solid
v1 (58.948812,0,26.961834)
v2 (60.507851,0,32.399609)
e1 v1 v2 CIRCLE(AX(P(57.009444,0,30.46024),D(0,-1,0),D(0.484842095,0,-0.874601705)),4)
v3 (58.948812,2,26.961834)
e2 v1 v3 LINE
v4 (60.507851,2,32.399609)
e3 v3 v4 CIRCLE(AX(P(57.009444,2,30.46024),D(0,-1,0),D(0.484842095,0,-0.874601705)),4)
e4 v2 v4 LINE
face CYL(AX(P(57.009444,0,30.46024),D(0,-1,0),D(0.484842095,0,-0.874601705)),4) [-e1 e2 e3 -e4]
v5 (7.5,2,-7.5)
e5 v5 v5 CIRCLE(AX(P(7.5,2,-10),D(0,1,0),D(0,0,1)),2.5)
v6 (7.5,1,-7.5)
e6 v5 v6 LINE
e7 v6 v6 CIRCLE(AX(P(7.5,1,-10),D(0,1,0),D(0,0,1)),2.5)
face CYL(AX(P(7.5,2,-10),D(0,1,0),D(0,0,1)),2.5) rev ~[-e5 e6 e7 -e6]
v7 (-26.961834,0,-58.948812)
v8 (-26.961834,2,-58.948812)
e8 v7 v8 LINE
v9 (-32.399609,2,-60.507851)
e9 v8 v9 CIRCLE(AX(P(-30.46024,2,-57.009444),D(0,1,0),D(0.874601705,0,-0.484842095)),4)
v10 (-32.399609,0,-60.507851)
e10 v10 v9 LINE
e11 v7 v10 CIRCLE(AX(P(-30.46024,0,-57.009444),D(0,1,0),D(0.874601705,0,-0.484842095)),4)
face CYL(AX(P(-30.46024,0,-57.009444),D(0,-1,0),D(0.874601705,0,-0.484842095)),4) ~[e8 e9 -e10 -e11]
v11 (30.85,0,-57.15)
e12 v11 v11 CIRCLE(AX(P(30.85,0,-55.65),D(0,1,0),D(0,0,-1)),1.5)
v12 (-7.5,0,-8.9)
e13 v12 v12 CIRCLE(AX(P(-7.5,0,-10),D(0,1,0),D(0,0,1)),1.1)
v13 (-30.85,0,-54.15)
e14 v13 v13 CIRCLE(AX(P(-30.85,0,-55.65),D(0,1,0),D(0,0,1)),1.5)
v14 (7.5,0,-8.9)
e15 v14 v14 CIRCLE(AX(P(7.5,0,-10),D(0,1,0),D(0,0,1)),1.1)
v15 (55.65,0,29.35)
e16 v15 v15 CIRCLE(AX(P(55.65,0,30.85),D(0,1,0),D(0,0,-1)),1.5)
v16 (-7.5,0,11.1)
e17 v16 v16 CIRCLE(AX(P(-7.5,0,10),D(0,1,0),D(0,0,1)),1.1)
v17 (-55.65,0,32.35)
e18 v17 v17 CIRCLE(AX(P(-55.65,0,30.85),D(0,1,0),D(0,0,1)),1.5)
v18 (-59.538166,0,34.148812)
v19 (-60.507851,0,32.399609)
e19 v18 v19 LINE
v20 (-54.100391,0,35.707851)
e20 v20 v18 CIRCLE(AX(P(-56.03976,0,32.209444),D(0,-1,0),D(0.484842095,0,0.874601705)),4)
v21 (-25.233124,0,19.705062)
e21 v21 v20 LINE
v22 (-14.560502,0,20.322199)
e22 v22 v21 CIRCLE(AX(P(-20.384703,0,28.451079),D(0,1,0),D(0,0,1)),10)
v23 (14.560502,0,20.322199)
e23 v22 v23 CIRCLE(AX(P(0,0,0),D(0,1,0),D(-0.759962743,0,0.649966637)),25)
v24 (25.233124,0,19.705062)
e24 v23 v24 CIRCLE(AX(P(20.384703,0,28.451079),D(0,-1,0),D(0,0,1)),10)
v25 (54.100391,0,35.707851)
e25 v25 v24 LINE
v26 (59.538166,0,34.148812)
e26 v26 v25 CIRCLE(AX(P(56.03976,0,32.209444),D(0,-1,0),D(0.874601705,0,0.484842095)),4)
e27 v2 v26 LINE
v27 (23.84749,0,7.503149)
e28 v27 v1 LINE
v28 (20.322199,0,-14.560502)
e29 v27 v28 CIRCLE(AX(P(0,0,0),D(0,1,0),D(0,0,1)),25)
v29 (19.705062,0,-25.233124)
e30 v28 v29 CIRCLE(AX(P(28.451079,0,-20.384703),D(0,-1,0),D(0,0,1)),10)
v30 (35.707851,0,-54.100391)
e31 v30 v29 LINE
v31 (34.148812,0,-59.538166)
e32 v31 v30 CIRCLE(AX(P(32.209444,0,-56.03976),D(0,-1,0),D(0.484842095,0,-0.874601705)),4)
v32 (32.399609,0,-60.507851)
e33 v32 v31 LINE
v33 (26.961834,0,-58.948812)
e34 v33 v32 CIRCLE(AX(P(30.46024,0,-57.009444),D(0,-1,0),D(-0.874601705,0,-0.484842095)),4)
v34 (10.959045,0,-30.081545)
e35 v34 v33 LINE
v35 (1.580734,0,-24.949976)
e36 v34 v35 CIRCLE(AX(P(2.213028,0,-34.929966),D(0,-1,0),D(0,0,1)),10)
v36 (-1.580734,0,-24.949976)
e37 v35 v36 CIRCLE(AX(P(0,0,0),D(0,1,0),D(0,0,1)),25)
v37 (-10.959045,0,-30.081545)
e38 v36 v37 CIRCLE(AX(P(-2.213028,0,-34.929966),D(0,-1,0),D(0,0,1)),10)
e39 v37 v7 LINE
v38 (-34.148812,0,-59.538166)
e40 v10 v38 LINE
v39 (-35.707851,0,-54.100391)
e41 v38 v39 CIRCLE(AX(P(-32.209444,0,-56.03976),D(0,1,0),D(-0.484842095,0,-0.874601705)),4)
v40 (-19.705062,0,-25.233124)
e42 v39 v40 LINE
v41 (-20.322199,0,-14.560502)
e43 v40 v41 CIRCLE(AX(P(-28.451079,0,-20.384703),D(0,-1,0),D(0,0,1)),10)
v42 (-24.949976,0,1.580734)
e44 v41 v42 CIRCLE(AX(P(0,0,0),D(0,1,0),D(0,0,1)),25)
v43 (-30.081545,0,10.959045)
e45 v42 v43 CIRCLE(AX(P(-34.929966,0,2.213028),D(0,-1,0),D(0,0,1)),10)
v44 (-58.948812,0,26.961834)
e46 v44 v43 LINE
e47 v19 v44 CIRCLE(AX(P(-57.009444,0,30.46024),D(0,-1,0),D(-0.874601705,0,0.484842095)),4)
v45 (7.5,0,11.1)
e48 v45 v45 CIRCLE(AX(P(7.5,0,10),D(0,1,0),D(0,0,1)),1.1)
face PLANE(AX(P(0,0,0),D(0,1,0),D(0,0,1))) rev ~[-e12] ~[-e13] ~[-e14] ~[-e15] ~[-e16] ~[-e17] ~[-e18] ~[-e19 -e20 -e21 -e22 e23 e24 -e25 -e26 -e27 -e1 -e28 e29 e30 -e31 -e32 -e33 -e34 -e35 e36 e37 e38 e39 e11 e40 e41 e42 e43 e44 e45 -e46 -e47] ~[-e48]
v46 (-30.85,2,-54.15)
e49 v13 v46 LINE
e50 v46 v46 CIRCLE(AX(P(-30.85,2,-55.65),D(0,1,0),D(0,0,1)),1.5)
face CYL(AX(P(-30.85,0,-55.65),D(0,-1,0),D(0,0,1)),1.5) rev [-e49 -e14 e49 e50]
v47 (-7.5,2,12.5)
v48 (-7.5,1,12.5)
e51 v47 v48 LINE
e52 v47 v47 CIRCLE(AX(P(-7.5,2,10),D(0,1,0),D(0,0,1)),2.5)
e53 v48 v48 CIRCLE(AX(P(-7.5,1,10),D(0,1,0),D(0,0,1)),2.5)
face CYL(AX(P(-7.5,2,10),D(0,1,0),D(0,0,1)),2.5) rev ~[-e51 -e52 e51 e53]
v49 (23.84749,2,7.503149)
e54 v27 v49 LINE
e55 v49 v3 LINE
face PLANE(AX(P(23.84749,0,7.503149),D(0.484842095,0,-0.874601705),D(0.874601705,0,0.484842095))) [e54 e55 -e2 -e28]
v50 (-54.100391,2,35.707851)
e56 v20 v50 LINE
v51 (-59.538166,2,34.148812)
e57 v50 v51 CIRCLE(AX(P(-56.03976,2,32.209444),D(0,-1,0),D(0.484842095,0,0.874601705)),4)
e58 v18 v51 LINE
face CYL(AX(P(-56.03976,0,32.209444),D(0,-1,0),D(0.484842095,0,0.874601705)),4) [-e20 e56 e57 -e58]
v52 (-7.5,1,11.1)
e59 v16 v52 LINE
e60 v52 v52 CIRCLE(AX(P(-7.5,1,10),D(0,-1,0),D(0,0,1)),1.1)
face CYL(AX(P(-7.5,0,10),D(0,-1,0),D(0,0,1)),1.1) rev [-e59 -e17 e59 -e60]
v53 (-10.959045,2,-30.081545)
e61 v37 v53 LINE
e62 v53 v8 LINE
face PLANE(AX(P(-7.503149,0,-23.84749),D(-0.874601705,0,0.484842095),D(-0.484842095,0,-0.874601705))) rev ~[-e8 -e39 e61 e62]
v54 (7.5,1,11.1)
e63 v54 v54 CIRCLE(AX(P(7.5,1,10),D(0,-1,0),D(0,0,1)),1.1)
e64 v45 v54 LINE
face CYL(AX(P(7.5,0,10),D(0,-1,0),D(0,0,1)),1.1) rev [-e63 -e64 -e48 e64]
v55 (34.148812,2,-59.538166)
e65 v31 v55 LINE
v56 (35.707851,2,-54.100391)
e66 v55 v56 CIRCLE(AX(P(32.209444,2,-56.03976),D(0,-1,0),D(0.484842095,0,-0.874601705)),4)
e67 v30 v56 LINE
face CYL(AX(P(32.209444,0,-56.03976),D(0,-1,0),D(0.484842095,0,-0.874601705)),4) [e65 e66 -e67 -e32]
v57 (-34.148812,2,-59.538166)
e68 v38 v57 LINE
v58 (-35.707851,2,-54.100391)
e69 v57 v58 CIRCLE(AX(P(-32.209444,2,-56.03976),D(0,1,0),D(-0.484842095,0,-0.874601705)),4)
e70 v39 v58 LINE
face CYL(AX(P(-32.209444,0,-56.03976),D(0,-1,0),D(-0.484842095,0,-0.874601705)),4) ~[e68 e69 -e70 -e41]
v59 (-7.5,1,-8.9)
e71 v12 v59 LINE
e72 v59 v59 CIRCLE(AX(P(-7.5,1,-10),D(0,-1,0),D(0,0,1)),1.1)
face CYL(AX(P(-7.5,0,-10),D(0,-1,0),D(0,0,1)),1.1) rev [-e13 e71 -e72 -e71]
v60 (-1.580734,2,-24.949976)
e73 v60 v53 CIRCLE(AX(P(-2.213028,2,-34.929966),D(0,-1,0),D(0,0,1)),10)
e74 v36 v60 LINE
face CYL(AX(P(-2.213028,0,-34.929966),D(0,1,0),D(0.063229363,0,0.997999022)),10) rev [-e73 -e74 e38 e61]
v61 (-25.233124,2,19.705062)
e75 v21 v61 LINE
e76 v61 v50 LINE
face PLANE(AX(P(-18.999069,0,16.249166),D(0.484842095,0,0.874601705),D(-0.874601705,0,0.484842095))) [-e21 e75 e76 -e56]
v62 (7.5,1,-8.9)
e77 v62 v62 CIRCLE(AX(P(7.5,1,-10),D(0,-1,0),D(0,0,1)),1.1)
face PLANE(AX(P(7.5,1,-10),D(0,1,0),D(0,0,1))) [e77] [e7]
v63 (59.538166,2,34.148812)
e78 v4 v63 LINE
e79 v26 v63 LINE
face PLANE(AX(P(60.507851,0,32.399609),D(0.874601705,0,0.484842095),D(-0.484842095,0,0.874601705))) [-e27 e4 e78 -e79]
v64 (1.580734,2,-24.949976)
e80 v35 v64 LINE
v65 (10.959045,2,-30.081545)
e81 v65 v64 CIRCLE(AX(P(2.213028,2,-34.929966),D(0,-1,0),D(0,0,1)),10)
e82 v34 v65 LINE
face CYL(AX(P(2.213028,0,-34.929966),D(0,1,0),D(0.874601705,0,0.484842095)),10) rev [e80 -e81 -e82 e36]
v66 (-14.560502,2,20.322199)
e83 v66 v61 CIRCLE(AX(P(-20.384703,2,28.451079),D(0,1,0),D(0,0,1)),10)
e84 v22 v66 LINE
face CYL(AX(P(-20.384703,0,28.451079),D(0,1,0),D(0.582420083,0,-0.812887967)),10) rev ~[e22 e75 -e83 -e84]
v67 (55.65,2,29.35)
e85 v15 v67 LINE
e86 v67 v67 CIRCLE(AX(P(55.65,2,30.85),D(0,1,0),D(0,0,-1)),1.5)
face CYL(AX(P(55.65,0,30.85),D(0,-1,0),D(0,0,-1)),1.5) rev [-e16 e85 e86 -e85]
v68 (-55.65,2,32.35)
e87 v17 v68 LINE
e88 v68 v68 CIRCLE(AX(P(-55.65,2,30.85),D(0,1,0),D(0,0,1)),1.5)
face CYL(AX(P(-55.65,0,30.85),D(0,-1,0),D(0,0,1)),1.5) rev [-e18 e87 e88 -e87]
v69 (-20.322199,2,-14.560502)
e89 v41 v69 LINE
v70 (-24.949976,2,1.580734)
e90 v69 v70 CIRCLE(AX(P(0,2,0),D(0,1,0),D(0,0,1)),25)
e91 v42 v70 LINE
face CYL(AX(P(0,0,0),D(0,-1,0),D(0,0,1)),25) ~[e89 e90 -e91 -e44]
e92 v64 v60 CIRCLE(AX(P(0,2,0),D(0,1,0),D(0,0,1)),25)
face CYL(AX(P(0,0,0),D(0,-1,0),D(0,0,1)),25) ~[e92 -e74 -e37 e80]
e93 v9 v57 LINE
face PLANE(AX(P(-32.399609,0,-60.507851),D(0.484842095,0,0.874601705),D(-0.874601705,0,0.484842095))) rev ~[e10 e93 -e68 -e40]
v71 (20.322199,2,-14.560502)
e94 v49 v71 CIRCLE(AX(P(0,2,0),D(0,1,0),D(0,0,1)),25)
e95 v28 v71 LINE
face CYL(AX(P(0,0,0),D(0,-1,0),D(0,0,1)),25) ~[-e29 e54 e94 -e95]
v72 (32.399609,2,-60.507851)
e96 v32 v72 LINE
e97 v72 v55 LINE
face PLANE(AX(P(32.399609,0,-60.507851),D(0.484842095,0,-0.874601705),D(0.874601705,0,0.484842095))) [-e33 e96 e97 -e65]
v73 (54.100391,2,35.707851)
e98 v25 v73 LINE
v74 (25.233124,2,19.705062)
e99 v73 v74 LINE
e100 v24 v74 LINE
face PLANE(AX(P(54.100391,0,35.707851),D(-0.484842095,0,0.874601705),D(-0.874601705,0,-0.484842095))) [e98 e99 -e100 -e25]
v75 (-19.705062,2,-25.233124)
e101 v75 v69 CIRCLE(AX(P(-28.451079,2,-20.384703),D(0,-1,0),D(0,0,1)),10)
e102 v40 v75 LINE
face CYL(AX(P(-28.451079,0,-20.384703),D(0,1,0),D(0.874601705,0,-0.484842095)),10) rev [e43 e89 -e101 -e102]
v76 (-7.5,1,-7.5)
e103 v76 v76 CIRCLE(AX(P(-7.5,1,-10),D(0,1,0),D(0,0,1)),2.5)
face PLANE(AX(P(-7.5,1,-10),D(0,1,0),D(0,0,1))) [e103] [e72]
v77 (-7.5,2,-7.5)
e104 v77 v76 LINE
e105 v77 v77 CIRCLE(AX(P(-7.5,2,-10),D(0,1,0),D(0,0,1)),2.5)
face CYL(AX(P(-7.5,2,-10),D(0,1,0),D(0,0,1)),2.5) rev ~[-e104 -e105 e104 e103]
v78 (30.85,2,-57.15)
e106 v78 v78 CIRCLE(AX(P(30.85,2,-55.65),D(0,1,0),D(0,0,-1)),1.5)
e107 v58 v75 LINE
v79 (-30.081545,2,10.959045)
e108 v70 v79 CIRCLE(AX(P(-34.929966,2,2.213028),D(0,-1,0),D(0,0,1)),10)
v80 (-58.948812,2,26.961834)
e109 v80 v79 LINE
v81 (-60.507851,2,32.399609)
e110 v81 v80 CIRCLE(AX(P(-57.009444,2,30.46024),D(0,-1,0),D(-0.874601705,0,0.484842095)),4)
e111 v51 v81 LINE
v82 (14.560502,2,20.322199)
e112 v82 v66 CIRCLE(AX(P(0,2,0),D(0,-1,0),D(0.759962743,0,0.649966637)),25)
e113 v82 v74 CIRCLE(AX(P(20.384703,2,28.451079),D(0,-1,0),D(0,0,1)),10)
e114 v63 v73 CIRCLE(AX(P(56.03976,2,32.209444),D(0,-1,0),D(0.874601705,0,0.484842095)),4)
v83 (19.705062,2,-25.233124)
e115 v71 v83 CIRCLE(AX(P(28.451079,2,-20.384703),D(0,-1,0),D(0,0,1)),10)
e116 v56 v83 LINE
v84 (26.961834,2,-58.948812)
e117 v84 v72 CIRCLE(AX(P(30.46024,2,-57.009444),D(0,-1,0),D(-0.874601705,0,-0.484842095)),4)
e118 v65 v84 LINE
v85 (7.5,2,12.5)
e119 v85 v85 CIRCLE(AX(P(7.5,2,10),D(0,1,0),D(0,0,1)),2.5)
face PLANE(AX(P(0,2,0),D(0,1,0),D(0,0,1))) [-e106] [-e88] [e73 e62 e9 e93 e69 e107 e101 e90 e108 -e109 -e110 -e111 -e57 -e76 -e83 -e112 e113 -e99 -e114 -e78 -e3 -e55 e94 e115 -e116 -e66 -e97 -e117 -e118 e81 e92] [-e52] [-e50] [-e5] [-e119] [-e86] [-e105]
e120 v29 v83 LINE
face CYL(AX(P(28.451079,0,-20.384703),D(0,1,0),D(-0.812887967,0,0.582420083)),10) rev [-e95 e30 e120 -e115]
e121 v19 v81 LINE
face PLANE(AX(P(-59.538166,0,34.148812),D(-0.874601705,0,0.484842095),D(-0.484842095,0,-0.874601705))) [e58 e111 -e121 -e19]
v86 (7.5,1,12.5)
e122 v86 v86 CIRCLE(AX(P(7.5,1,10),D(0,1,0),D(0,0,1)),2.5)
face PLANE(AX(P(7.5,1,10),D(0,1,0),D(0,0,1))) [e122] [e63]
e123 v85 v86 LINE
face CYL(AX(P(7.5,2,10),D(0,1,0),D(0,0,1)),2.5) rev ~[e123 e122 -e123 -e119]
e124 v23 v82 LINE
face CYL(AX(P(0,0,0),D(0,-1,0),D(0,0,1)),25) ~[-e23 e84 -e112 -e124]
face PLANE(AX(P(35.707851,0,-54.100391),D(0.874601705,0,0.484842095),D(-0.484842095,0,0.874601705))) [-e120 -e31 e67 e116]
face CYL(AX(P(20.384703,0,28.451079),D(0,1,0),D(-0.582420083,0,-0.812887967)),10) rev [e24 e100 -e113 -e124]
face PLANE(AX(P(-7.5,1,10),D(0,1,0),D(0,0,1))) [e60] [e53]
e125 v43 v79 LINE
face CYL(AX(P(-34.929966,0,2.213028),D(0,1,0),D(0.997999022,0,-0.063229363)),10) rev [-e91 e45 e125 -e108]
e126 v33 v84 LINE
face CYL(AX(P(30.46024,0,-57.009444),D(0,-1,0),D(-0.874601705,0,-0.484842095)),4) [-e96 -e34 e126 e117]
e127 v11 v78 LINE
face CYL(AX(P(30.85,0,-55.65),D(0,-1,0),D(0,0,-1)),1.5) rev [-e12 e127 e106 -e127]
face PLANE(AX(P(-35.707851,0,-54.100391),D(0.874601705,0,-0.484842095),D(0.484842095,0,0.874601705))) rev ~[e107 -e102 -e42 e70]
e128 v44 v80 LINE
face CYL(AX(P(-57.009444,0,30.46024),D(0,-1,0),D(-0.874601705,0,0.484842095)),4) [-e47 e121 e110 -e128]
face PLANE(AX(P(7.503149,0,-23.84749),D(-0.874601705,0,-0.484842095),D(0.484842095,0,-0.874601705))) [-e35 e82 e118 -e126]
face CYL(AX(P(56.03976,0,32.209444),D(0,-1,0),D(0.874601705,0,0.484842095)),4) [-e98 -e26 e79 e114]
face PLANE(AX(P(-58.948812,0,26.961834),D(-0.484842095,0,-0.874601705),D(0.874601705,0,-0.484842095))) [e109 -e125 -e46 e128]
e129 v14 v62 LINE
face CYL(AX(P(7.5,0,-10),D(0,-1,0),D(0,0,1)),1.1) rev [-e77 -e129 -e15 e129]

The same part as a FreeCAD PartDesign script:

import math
import FreeCAD as App
import Part
import Sketcher
from FreeCAD import Vector
Q = App.Units.Quantity


def edges_at(feature, points):
    """Names of the edges that pass closest to the given points."""
    edges = feature.Shape.Edges
    near = lambda p: min(range(len(edges)), key=lambda i: edges[i].distToShape(Part.Vertex(*p))[0])
    return sorted({f"Edge{near(p) + 1}" for p in points})

doc = App.newDocument("Part")
body = doc.addObject("PartDesign::Body", "Body")

sketch1 = body.newObject("Sketcher::SketchObject", "Sketch")
sketch1.AttachmentSupport = (doc.getObject("XZ_Plane"), [""])
sketch1.MapMode = "FlatFace"
sketch1.addGeometry([
    Part.Circle(Vector(0, 0, 0), Vector(0, 0, 1), 25),
    Part.Circle(Vector(-7.5, -10, 0), Vector(0, 0, 1), 1.1),
    Part.Circle(Vector(-7.5, 10, 0), Vector(0, 0, 1), 1.1),
    Part.Circle(Vector(7.5, -10, 0), Vector(0, 0, 1), 1.1),
    Part.Circle(Vector(7.5, 10, 0), Vector(0, 0, 1), 1.1),
], False)
sketch1.addConstraint([
    Sketcher.Constraint("Coincident", 0, 3, -1, 1),
    Sketcher.Constraint("Equal", 1, 2),
    Sketcher.Constraint("Equal", 2, 3),
    Sketcher.Constraint("Equal", 3, 4),
    Sketcher.Constraint("Symmetric", 2, 3, 3, 3, -1, 1),
    Sketcher.Constraint("Symmetric", 1, 3, 4, 3, -1, 1),
    Sketcher.Constraint("Symmetric", 1, 3, 3, 3, -2),
    Sketcher.Constraint("Diameter", 0, Q("50 mm")),
    Sketcher.Constraint("Diameter", 1, Q("2.2 mm")),
    Sketcher.Constraint("DistanceY", 1, 3, -1, 1, Q("10 mm")),
    Sketcher.Constraint("DistanceX", 1, 3, 3, 3, Q("15 mm")),
])
pad1 = body.newObject("PartDesign::Pad", "Pad")
pad1.Profile = sketch1
pad1.Length = 2
pad1.Reversed = True

sketch2 = body.newObject("Sketcher::SketchObject", "Sketch001")
sketch2.AttachmentSupport = (doc.getObject("XZ_Plane"), [""])
sketch2.MapMode = "FlatFace"
sketch2.AttachmentOffset = App.Placement(Vector(0, 0, -2), App.Rotation())
sketch2.addGeometry([
    Part.Circle(Vector(-7.5, -10, 0), Vector(0, 0, 1), 2.5),
    Part.Circle(Vector(7.5, -10, 0), Vector(0, 0, 1), 2.5),
    Part.Circle(Vector(-7.5, 10, 0), Vector(0, 0, 1), 2.5),
    Part.Circle(Vector(7.5, 10, 0), Vector(0, 0, 1), 2.5),
], False)
sketch2.addConstraint([
    Sketcher.Constraint("Equal", 0, 1),
    Sketcher.Constraint("Equal", 1, 2),
    Sketcher.Constraint("Equal", 2, 3),
    Sketcher.Constraint("Symmetric", 1, 3, 2, 3, -1, 1),
    Sketcher.Constraint("Symmetric", 0, 3, 3, 3, -1, 1),
    Sketcher.Constraint("Symmetric", 0, 3, 1, 3, -2),
    Sketcher.Constraint("Diameter", 0, Q("5 mm")),
    Sketcher.Constraint("DistanceY", 0, 3, -1, 1, Q("10 mm")),
    Sketcher.Constraint("DistanceX", 0, 3, 1, 3, Q("15 mm")),
])
pocket1 = body.newObject("PartDesign::Pocket", "Pocket")
pocket1.Profile = sketch2
pocket1.Length = 1
pocket1.Reversed = True

sketch3 = body.newObject("Sketcher::SketchObject", "Sketch002")
sketch3.AttachmentSupport = (doc.getObject("XZ_Plane"), [""])
sketch3.MapMode = "FlatFace"
sketch3.addGeometry([
    Part.LineSegment(Vector(-7.503149, -23.84749, 0), Vector(-26.961834, -58.948812, 0)),
    Part.ArcOfCircle(Part.Circle(Vector(-30.46024, -57.009444, 0), Vector(0, 0, 1), 4), math.radians(-119.002127), math.radians(-29.002127)),
    Part.LineSegment(Vector(-32.399609, -60.507851, 0), Vector(-34.148812, -59.538166, 0)),
    Part.ArcOfCircle(Part.Circle(Vector(-32.209444, -56.03976, 0), Vector(0, 0, 1), 4), math.radians(150.997873), math.radians(240.997873)),
    Part.LineSegment(Vector(-35.707851, -54.100391, 0), Vector(-16.249166, -18.999069, 0)),
    Part.ArcOfCircle(Part.Circle(Vector(0, 0, 0), Vector(0, 0, 1), 25), math.radians(-130.539086), math.radians(-107.465168)),
    Part.Circle(Vector(-30.85, -55.65, 0), Vector(0, 0, 1), 1.5),
    Part.LineSegment(Vector(-23.84749, 7.503149, 0), Vector(-58.948812, 26.961834, 0)),
    Part.ArcOfCircle(Part.Circle(Vector(-57.009444, 30.46024, 0), Vector(0, 0, 1), 4), math.radians(150.997873), math.radians(240.997873)),
    Part.LineSegment(Vector(-60.507851, 32.399609, 0), Vector(-59.538166, 34.148812, 0)),
    Part.ArcOfCircle(Part.Circle(Vector(-56.03976, 32.209444, 0), Vector(0, 0, 1), 4), math.radians(60.997873), math.radians(150.997873)),
    Part.LineSegment(Vector(-54.100391, 35.707851, 0), Vector(-18.999069, 16.249166, 0)),
    Part.ArcOfCircle(Part.Circle(Vector(0, 0, 0), Vector(0, 0, 1), 25), math.radians(139.460914), math.radians(162.534832)),
    Part.Circle(Vector(-55.65, 30.85, 0), Vector(0, 0, 1), 1.5),
    Part.LineSegment(Vector(59.538166, 34.148812, 0), Vector(60.507851, 32.399609, 0)),
    Part.ArcOfCircle(Part.Circle(Vector(57.009444, 30.46024, 0), Vector(0, 0, 1), 4), math.radians(-60.997873), math.radians(29.002127)),
    Part.LineSegment(Vector(58.948812, 26.961834, 0), Vector(23.84749, 7.503149, 0)),
    Part.ArcOfCircle(Part.Circle(Vector(0, 0, 0), Vector(0, 0, 1), 25), math.radians(17.465168), math.radians(40.539086)),
    Part.LineSegment(Vector(18.999069, 16.249166, 0), Vector(54.100391, 35.707851, 0)),
    Part.ArcOfCircle(Part.Circle(Vector(56.03976, 32.209444, 0), Vector(0, 0, 1), 4), math.radians(29.002127), math.radians(119.002127)),
    Part.Circle(Vector(55.65, 30.85, 0), Vector(0, 0, 1), 1.5),
    Part.LineSegment(Vector(34.148812, -59.538166, 0), Vector(32.399609, -60.507851, 0)),
    Part.ArcOfCircle(Part.Circle(Vector(30.46024, -57.009444, 0), Vector(0, 0, 1), 4), math.radians(-150.997873), math.radians(-60.997873)),
    Part.LineSegment(Vector(26.961834, -58.948812, 0), Vector(7.503149, -23.84749, 0)),
    Part.ArcOfCircle(Part.Circle(Vector(0, 0, 0), Vector(0, 0, 1), 25), math.radians(-72.534832), math.radians(-49.460914)),
    Part.LineSegment(Vector(16.249166, -18.999069, 0), Vector(35.707851, -54.100391, 0)),
    Part.ArcOfCircle(Part.Circle(Vector(32.209444, -56.03976, 0), Vector(0, 0, 1), 4), math.radians(-60.997873), math.radians(29.002127)),
    Part.Circle(Vector(30.85, -55.65, 0), Vector(0, 0, 1), 1.5),
], False)
sketch3.addConstraint([
    Sketcher.Constraint("Tangent", 0, 2, 1, 2),
    Sketcher.Constraint("Tangent", 1, 1, 2, 1),
    Sketcher.Constraint("Tangent", 2, 2, 3, 2),
    Sketcher.Constraint("Tangent", 3, 1, 4, 1),
    Sketcher.Constraint("Coincident", 4, 2, 5, 1),
    Sketcher.Constraint("Coincident", 5, 2, 0, 1),
    Sketcher.Constraint("Tangent", 7, 2, 8, 2),
    Sketcher.Constraint("Tangent", 8, 1, 9, 1),
    Sketcher.Constraint("Tangent", 9, 2, 10, 2),
    Sketcher.Constraint("Tangent", 10, 1, 11, 1),
    Sketcher.Constraint("Coincident", 11, 2, 12, 1),
    Sketcher.Constraint("Coincident", 12, 2, 7, 1),
    Sketcher.Constraint("Tangent", 14, 2, 15, 2),
    Sketcher.Constraint("Tangent", 15, 1, 16, 1),
    Sketcher.Constraint("Coincident", 16, 2, 17, 1),
    Sketcher.Constraint("Coincident", 17, 2, 18, 1),
    Sketcher.Constraint("Tangent", 18, 2, 19, 2),
    Sketcher.Constraint("Tangent", 19, 1, 14, 1),
    Sketcher.Constraint("Tangent", 21, 2, 22, 2),
    Sketcher.Constraint("Tangent", 22, 1, 23, 1),
    Sketcher.Constraint("Coincident", 23, 2, 24, 1),
    Sketcher.Constraint("Coincident", 24, 2, 25, 1),
    Sketcher.Constraint("Tangent", 25, 2, 26, 2),
    Sketcher.Constraint("Tangent", 26, 1, 21, 1),
    Sketcher.Constraint("Coincident", 5, 3, -1, 1),
    Sketcher.Constraint("Coincident", 12, 3, -1, 1),
    Sketcher.Constraint("Coincident", 17, 3, -1, 1),
    Sketcher.Constraint("Coincident", 24, 3, -1, 1),
    Sketcher.Constraint("Equal", 1, 3),
    Sketcher.Constraint("Equal", 3, 8),
    Sketcher.Constraint("Equal", 8, 10),
    Sketcher.Constraint("Equal", 5, 12),
    Sketcher.Constraint("Equal", 6, 13),
    Sketcher.Constraint("Equal", 10, 15),
    Sketcher.Constraint("Equal", 12, 17),
    Sketcher.Constraint("Equal", 15, 19),
    Sketcher.Constraint("Equal", 13, 20),
    Sketcher.Constraint("Equal", 19, 22),
    Sketcher.Constraint("Equal", 17, 24),
    Sketcher.Constraint("Equal", 22, 26),
    Sketcher.Constraint("Equal", 20, 27),
    Sketcher.Constraint("Symmetric", 8, 3, 15, 3, -2),
    Sketcher.Constraint("Symmetric", 10, 3, 19, 3, -2),
    Sketcher.Constraint("Symmetric", 13, 3, 20, 3, -2),
    Sketcher.Constraint("Symmetric", 1, 3, 22, 3, -2),
    Sketcher.Constraint("Symmetric", 3, 3, 26, 3, -2),
    Sketcher.Constraint("Symmetric", 6, 3, 27, 3, -2),
    Sketcher.Constraint("Perpendicular", 0, 2),
    Sketcher.Constraint("Perpendicular", 2, 4),
    Sketcher.Constraint("Perpendicular", 4, 7),
    Sketcher.Constraint("Perpendicular", 7, 9),
    Sketcher.Constraint("Perpendicular", 9, 11),
    Sketcher.Constraint("Perpendicular", 14, 16),
    Sketcher.Constraint("Parallel", 16, 18),
    Sketcher.Constraint("Perpendicular", 21, 23),
    Sketcher.Constraint("Parallel", 23, 25),
    Sketcher.Constraint("Equal", 0, 4),
    Sketcher.Constraint("Equal", 4, 7),
    Sketcher.Constraint("Equal", 2, 9),
    Sketcher.Constraint("Equal", 7, 11),
    Sketcher.Constraint("Diameter", 6, Q("3 mm")),
    Sketcher.Constraint("Radius", 1, Q("4 mm")),
    Sketcher.Constraint("Radius", 5, Q("25 mm")),
    Sketcher.Constraint("Distance", 2, Q("2 mm")),
    Sketcher.Constraint("DistanceX", 8, 3, 3, 3, Q("24.8 mm")),
    Sketcher.Constraint("DistanceY", 3, 3, 8, 3, Q("86.5 mm")),
    Sketcher.Constraint("DistanceX", 13, 3, 6, 3, Q("24.8 mm")),
    Sketcher.Constraint("DistanceY", 6, 3, 13, 3, Q("86.5 mm")),
    Sketcher.Constraint("DistanceX", 6, 3, 27, 3, Q("61.7 mm")),
    Sketcher.Constraint("DistanceY", 6, 3, -1, 1, Q("55.65 mm")),
])
pad2 = body.newObject("PartDesign::Pad", "Pad001")
pad2.Profile = sketch3
pad2.Length = 2
pad2.Reversed = True
doc.recompute()

fillet = body.newObject("PartDesign::Fillet", "Fillet")
fillet.Base = (pad2, edges_at(pad2, [
    (-7.503, 1, -23.847),
    (-16.249, 1, -18.999),
    (-23.847, 1, 7.503),
    (-18.999, 1, 16.249),
    (18.999, 1, 16.249),
    (16.249, 1, -18.999),
]))
fillet.Radius = 10
doc.recompute()

fillet2 = body.newObject("PartDesign::Fillet", "Fillet001")
fillet2.Base = (fillet, edges_at(fillet, [(7.503, 1, -23.847)]))
fillet2.Radius = 10

doc.recompute()
